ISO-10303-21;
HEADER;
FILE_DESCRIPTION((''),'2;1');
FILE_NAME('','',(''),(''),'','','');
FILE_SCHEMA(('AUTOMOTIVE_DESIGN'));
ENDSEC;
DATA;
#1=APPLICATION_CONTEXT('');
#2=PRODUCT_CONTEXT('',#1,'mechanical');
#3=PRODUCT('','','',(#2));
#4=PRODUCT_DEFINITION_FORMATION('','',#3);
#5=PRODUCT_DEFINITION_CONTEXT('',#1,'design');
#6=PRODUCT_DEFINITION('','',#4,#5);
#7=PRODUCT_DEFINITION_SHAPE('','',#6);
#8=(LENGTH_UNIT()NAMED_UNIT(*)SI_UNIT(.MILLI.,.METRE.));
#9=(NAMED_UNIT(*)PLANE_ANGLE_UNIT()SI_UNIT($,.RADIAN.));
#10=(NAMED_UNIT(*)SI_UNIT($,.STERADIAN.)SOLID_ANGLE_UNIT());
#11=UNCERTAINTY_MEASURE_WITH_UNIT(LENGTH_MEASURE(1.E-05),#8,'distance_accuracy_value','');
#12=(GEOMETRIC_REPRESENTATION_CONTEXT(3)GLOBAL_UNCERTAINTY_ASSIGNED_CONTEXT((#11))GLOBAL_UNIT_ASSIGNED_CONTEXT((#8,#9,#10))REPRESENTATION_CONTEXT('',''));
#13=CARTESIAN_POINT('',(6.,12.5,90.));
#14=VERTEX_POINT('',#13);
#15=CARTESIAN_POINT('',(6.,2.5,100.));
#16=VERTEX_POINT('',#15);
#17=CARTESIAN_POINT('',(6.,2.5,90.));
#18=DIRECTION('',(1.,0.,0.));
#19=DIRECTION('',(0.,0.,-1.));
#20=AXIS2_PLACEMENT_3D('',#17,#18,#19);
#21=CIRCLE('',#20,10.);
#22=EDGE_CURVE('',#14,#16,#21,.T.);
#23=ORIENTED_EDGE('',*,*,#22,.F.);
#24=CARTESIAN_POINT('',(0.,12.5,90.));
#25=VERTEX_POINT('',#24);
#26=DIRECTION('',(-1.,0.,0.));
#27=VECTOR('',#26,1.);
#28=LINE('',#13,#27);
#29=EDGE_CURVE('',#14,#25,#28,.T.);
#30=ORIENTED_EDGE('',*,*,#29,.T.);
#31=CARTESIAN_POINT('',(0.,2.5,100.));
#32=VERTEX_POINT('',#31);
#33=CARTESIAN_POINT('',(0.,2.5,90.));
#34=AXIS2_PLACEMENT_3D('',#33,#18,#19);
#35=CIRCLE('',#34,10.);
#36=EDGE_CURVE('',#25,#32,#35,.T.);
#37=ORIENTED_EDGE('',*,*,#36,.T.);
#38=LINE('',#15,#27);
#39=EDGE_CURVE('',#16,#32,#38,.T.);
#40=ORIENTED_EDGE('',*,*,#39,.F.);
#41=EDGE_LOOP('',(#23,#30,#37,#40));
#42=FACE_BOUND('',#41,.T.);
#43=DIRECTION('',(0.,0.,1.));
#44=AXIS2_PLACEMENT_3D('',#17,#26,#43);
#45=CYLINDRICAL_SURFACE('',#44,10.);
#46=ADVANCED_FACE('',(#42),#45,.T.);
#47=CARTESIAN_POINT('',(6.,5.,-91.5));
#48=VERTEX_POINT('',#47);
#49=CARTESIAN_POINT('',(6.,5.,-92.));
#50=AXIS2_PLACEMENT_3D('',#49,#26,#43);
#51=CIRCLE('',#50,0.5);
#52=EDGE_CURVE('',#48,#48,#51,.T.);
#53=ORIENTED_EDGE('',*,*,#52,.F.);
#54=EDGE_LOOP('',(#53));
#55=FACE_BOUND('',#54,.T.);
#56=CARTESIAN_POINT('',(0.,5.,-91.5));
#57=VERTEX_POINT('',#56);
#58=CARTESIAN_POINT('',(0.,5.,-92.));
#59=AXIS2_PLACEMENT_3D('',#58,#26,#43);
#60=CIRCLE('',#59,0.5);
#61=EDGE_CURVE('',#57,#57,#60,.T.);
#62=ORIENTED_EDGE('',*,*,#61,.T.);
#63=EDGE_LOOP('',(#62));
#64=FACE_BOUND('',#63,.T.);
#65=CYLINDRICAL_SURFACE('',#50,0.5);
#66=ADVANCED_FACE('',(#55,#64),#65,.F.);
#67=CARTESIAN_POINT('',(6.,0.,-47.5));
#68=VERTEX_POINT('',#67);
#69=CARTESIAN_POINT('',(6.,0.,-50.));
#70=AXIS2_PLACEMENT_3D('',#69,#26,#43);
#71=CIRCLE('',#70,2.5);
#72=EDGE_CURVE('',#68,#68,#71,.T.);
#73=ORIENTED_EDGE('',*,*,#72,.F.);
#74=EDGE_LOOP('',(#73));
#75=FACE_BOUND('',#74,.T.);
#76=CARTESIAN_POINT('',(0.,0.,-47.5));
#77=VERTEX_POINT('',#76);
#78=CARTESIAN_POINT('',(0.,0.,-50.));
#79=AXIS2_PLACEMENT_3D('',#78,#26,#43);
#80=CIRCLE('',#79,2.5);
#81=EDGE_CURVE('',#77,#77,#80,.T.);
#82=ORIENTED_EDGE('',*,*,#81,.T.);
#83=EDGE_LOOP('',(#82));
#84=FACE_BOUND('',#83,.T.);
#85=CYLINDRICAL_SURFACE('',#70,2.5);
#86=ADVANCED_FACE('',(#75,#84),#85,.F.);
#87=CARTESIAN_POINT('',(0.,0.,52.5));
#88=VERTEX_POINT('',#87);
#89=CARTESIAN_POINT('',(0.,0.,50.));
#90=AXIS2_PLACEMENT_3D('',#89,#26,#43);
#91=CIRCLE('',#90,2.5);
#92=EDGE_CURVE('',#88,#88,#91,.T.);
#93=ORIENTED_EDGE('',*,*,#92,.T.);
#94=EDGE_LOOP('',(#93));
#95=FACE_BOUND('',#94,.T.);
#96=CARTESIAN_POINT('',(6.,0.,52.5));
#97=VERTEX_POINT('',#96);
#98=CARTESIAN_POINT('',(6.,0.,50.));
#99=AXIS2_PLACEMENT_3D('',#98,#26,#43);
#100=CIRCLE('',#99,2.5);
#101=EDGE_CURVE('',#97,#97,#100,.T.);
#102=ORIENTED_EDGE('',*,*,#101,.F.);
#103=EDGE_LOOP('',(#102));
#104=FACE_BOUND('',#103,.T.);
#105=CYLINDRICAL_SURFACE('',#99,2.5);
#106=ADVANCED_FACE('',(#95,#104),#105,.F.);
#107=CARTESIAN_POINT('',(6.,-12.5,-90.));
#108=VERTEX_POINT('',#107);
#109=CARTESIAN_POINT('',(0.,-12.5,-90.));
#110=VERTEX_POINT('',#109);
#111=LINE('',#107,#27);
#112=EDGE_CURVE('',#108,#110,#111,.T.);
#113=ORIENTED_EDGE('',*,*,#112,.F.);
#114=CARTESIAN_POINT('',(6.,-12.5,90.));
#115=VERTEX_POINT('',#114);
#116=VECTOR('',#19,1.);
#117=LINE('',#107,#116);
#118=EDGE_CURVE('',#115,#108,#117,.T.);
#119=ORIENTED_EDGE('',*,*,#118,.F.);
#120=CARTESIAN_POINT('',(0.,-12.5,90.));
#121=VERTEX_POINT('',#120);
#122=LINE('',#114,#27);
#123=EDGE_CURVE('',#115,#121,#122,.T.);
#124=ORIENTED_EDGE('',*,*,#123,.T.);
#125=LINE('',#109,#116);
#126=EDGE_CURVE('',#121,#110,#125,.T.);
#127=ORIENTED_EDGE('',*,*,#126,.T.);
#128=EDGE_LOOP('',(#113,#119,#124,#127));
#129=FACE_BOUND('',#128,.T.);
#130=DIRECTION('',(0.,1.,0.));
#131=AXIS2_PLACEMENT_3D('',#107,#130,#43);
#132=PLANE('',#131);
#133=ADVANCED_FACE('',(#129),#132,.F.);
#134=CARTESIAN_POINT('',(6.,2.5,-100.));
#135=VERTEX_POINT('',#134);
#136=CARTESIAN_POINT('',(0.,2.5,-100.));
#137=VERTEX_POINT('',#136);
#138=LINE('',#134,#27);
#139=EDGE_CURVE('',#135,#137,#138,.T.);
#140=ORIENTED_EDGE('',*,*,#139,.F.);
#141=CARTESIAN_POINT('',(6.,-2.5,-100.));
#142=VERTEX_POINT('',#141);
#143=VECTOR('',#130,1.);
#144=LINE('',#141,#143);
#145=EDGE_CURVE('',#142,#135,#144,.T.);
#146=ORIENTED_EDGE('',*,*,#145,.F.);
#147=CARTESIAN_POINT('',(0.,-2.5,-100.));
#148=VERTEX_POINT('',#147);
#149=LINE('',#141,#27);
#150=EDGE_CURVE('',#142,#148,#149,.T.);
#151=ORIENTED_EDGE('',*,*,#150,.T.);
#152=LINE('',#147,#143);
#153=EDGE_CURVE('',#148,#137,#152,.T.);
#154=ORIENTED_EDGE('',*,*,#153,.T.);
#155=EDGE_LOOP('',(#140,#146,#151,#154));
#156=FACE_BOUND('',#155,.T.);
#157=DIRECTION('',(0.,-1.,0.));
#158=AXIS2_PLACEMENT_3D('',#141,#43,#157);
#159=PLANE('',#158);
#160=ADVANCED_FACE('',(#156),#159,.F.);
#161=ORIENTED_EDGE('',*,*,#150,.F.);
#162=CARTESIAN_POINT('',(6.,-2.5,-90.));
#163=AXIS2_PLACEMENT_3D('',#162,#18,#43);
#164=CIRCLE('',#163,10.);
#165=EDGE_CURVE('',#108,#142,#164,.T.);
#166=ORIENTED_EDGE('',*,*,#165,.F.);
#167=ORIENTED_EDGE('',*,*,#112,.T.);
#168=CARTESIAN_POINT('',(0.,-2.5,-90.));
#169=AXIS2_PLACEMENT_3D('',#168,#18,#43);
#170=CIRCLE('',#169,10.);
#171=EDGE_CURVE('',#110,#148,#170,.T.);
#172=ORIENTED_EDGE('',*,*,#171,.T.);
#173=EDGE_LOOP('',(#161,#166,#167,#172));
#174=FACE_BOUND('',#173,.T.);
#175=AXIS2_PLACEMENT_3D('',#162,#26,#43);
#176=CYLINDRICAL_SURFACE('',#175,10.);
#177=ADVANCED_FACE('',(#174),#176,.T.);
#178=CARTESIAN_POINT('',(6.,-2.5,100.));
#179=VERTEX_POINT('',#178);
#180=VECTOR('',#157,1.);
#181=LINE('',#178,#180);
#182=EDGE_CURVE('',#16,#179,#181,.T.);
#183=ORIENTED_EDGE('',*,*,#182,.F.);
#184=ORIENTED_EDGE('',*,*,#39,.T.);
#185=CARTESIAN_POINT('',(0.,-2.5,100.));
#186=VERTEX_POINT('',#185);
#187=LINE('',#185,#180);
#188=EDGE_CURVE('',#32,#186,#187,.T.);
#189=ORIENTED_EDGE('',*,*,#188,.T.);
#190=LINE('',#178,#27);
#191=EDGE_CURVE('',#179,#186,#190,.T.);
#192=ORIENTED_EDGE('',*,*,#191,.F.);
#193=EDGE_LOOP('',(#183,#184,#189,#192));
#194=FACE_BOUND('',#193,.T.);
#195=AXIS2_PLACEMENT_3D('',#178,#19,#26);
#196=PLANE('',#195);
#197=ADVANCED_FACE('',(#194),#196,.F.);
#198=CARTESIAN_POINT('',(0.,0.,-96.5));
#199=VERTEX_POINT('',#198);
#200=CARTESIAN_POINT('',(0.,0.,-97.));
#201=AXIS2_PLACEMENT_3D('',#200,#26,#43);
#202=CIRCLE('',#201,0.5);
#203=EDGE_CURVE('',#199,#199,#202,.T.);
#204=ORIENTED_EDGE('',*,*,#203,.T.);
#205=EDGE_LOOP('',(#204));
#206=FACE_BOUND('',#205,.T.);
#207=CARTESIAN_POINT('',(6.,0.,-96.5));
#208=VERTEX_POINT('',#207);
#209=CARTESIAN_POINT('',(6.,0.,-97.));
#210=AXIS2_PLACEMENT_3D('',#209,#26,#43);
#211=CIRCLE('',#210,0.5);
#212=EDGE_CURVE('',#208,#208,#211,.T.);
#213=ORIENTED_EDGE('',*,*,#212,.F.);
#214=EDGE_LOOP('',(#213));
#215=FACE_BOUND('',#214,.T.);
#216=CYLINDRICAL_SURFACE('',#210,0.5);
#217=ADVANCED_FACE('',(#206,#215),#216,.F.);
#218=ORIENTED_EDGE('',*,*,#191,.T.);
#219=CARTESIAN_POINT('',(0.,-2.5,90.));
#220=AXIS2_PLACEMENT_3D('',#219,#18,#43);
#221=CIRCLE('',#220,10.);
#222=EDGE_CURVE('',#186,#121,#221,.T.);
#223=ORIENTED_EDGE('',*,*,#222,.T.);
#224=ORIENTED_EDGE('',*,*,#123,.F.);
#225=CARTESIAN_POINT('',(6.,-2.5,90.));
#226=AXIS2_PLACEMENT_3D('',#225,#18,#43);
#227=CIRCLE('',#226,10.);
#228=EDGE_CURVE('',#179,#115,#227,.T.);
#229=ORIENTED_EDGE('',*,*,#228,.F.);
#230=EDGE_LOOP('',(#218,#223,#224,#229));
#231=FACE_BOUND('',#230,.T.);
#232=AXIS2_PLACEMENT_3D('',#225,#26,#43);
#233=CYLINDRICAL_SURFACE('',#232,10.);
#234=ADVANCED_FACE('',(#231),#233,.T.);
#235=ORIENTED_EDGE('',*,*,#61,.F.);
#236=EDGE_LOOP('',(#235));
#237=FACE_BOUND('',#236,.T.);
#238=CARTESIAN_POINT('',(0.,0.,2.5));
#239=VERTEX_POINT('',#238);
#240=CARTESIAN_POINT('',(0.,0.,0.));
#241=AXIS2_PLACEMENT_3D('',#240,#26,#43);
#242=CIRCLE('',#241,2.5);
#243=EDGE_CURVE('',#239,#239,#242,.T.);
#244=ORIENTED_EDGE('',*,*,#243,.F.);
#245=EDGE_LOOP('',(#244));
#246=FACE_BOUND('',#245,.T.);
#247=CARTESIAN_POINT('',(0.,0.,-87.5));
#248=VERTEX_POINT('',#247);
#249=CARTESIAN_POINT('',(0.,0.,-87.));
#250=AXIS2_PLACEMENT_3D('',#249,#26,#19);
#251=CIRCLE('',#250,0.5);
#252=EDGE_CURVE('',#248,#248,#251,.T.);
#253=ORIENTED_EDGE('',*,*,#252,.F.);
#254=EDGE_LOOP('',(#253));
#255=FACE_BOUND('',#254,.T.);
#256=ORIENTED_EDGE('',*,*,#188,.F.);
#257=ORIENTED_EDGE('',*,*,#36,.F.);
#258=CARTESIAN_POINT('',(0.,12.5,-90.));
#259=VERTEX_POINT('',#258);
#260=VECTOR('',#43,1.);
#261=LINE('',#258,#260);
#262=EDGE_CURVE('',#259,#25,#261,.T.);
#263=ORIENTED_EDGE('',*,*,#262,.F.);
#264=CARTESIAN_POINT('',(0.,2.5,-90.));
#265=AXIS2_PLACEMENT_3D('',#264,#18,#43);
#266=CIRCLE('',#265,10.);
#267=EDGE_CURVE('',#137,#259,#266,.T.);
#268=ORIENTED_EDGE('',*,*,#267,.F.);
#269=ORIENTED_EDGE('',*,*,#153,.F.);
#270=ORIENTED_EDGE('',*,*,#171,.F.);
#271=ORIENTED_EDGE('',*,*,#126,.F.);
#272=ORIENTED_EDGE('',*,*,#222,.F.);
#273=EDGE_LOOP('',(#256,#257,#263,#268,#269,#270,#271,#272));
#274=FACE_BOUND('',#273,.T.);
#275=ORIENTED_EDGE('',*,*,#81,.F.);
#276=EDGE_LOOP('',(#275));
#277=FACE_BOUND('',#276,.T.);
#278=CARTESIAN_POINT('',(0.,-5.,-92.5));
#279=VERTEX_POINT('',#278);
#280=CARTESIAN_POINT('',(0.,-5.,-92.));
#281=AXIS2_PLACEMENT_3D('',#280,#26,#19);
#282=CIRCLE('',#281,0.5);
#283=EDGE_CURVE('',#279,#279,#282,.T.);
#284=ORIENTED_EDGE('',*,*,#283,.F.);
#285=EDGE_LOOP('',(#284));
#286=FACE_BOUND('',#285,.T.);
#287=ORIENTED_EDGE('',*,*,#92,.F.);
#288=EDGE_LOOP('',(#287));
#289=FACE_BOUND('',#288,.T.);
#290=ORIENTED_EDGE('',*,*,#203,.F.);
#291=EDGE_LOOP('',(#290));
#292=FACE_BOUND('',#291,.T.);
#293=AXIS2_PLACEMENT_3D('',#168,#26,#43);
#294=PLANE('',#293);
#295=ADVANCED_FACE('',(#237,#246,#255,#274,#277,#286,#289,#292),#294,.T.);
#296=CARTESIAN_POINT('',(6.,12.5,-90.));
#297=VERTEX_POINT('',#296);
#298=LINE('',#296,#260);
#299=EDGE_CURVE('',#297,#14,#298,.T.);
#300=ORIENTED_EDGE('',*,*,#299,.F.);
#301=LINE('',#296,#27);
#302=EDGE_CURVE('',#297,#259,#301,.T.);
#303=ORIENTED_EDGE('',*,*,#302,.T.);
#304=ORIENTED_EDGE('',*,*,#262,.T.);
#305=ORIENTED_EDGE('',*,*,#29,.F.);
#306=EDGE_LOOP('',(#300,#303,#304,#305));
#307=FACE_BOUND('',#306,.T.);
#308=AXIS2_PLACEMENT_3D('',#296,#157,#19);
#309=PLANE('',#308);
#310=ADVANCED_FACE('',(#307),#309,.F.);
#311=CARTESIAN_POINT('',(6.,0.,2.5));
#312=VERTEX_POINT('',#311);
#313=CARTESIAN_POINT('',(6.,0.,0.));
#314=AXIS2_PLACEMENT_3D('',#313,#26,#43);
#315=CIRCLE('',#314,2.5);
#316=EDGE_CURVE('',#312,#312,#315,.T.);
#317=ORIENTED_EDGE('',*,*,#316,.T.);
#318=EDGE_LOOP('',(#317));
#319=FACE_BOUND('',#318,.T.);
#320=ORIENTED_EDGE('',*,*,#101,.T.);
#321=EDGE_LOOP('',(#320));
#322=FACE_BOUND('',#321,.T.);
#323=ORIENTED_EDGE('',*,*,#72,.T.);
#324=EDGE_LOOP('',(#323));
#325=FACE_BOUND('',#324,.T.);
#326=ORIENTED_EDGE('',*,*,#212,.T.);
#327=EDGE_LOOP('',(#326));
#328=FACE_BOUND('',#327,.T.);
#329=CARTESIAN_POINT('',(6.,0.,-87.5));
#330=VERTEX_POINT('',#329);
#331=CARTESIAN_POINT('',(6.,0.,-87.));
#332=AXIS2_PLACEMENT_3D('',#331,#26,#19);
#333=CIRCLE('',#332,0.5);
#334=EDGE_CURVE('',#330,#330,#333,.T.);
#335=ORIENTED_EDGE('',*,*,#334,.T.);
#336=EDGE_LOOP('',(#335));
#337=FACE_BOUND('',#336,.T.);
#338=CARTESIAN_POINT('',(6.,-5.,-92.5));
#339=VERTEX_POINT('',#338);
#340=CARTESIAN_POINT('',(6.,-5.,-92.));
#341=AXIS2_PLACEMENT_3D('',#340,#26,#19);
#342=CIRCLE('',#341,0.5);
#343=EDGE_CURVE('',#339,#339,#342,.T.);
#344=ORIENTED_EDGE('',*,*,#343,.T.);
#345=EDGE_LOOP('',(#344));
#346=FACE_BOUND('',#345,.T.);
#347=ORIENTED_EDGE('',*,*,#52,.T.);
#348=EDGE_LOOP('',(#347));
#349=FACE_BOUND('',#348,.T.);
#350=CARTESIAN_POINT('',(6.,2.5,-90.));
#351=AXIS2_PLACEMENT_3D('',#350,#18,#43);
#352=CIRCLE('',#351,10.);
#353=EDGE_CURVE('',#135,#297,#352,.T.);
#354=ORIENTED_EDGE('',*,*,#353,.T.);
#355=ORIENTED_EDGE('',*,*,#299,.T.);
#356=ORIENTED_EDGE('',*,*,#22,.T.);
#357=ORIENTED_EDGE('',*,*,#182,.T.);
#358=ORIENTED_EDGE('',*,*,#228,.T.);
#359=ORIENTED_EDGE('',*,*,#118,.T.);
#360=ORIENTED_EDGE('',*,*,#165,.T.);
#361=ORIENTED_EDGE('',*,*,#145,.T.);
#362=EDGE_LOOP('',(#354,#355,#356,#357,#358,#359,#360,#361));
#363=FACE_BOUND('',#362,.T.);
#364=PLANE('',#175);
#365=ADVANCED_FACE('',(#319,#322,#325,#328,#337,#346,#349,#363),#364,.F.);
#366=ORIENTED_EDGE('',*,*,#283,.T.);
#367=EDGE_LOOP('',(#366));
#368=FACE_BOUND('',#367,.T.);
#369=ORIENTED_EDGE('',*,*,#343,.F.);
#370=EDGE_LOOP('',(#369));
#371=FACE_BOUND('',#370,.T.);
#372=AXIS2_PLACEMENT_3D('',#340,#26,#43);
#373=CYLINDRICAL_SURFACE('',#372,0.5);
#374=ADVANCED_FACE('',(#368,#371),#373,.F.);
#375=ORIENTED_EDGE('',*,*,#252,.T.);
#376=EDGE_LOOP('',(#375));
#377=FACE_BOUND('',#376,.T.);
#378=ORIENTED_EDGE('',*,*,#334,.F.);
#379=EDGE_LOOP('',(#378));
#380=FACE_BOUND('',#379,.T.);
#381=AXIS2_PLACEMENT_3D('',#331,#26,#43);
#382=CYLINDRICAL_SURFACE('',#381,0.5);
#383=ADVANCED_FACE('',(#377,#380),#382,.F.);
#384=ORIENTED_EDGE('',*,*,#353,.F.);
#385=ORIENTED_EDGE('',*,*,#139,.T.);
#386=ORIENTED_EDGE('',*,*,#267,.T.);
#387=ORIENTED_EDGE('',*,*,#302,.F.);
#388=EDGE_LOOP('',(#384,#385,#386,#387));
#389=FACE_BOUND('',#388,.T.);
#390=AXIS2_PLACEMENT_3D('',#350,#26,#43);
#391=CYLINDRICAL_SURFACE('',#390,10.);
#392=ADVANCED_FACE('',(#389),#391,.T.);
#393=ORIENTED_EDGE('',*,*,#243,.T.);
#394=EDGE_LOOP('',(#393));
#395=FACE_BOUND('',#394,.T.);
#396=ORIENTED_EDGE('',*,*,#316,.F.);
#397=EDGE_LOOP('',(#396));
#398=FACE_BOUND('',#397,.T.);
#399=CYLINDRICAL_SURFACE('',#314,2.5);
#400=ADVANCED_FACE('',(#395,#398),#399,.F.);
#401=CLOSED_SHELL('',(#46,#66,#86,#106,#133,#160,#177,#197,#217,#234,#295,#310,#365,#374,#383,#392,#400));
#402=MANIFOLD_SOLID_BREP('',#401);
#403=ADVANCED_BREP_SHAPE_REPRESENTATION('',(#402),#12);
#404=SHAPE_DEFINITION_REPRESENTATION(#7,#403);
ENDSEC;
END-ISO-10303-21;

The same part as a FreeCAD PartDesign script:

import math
import FreeCAD as App
import Part
import Sketcher
from FreeCAD import Vector
Q = App.Units.Quantity

doc = App.newDocument("Part")
body = doc.addObject("PartDesign::Body", "Body")

sketch1 = body.newObject("Sketcher::SketchObject", "Sketch")
sketch1.AttachmentSupport = (doc.getObject("YZ_Plane"), [""])
sketch1.MapMode = "FlatFace"
sketch1.addGeometry([
    Part.LineSegment(Vector(-12.5, 90, 0), Vector(-12.5, -90, 0)),
    Part.ArcOfCircle(Part.Circle(Vector(-2.5, -90, 0), Vector(0, 0, 1), 10), math.radians(180), math.radians(270)),
    Part.LineSegment(Vector(-2.5, -100, 0), Vector(2.5, -100, 0)),
    Part.ArcOfCircle(Part.Circle(Vector(2.5, -90, 0), Vector(0, 0, 1), 10), math.radians(-90), math.radians(0)),
    Part.LineSegment(Vector(12.5, -90, 0), Vector(12.5, 90, 0)),
    Part.ArcOfCircle(Part.Circle(Vector(2.5, 90, 0), Vector(0, 0, 1), 10), math.radians(0), math.radians(90)),
    Part.LineSegment(Vector(2.5, 100, 0), Vector(-2.5, 100, 0)),
    Part.ArcOfCircle(Part.Circle(Vector(-2.5, 90, 0), Vector(0, 0, 1), 10), math.radians(90), math.radians(180)),
], False)
sketch1.addConstraint([
    Sketcher.Constraint("Tangent", 0, 2, 1, 1),
    Sketcher.Constraint("Tangent", 1, 2, 2, 1),
    Sketcher.Constraint("Tangent", 2, 2, 3, 1),
    Sketcher.Constraint("Tangent", 3, 2, 4, 1),
    Sketcher.Constraint("Tangent", 4, 2, 5, 1),
    Sketcher.Constraint("Tangent", 5, 2, 6, 1),
    Sketcher.Constraint("Tangent", 6, 2, 7, 1),
    Sketcher.Constraint("Tangent", 7, 2, 0, 1),
    Sketcher.Constraint("Vertical", 0),
    Sketcher.Constraint("Horizontal", 2),
    Sketcher.Constraint("Vertical", 4),
    Sketcher.Constraint("Horizontal", 6),
    Sketcher.Constraint("Equal", 1, 3),
    Sketcher.Constraint("Equal", 3, 5),
    Sketcher.Constraint("Equal", 5, 7),
    Sketcher.Constraint("Symmetric", 1, 3, 5, 3, -1, 1),
    Sketcher.Constraint("Radius", 1, Q("10 mm")),
    Sketcher.Constraint("DistanceX", 2, 1, 2, 2, Q("5 mm")),
    Sketcher.Constraint("DistanceY", 0, 2, 0, 1, Q("180 mm")),
])
pad1 = body.newObject("PartDesign::Pad", "Pad")
pad1.Profile = sketch1
pad1.Length = 6

sketch2 = body.newObject("Sketcher::SketchObject", "Sketch001")
sketch2.AttachmentSupport = (doc.getObject("YZ_Plane"), [""])
sketch2.MapMode = "FlatFace"
sketch2.addGeometry([
    Part.Circle(Vector(0, -97, 0), Vector(0, 0, 1), 0.5),
    Part.Circle(Vector(5, -92, 0), Vector(0, 0, 1), 0.5),
    Part.Circle(Vector(-5, -92, 0), Vector(0, 0, 1), 0.5),
    Part.Circle(Vector(0, -87, 0), Vector(0, 0, 1), 0.5),
    Part.Circle(Vector(0, -50, 0), Vector(0, 0, 1), 2.5),
    Part.Circle(Vector(0, 0, 0), Vector(0, 0, 1), 2.5),
    Part.Circle(Vector(0, 50, 0), Vector(0, 0, 1), 2.5),
], False)
sketch2.addConstraint([
    Sketcher.Constraint("Coincident", 5, 3, -1, 1),
    Sketcher.Constraint("Equal", 0, 1),
    Sketcher.Constraint("Equal", 1, 2),
    Sketcher.Constraint("Equal", 2, 3),
    Sketcher.Constraint("Equal", 4, 5),
    Sketcher.Constraint("Equal", 5, 6),
    Sketcher.Constraint("Symmetric", 4, 3, 6, 3, -1, 1),
    Sketcher.Constraint("Symmetric", 1, 3, 2, 3, -2),
    Sketcher.Constraint("PointOnObject", 0, 3, -2),
    Sketcher.Constraint("PointOnObject", 3, 3, -2),
    Sketcher.Constraint("PointOnObject", 4, 3, -2),
    Sketcher.Constraint("Diameter", 0, Q("1 mm")),
    Sketcher.Constraint("Diameter", 4, Q("5 mm")),
    Sketcher.Constraint("DistanceY", 0, 3, -1, 1, Q("97 mm")),
    Sketcher.Constraint("DistanceX", -1, 1, 1, 3, Q("5 mm")),
    Sketcher.Constraint("DistanceY", 1, 3, -1, 1, Q("92 mm")),
    Sketcher.Constraint("DistanceY", 3, 3, -1, 1, Q("87 mm")),
    Sketcher.Constraint("DistanceY", 4, 3, -1, 1, Q("50 mm")),
])
pocket1 = body.newObject("PartDesign::Pocket", "Pocket")
pocket1.Profile = sketch2
pocket1.Length = 6
pocket1.Reversed = True

doc.recompute()
